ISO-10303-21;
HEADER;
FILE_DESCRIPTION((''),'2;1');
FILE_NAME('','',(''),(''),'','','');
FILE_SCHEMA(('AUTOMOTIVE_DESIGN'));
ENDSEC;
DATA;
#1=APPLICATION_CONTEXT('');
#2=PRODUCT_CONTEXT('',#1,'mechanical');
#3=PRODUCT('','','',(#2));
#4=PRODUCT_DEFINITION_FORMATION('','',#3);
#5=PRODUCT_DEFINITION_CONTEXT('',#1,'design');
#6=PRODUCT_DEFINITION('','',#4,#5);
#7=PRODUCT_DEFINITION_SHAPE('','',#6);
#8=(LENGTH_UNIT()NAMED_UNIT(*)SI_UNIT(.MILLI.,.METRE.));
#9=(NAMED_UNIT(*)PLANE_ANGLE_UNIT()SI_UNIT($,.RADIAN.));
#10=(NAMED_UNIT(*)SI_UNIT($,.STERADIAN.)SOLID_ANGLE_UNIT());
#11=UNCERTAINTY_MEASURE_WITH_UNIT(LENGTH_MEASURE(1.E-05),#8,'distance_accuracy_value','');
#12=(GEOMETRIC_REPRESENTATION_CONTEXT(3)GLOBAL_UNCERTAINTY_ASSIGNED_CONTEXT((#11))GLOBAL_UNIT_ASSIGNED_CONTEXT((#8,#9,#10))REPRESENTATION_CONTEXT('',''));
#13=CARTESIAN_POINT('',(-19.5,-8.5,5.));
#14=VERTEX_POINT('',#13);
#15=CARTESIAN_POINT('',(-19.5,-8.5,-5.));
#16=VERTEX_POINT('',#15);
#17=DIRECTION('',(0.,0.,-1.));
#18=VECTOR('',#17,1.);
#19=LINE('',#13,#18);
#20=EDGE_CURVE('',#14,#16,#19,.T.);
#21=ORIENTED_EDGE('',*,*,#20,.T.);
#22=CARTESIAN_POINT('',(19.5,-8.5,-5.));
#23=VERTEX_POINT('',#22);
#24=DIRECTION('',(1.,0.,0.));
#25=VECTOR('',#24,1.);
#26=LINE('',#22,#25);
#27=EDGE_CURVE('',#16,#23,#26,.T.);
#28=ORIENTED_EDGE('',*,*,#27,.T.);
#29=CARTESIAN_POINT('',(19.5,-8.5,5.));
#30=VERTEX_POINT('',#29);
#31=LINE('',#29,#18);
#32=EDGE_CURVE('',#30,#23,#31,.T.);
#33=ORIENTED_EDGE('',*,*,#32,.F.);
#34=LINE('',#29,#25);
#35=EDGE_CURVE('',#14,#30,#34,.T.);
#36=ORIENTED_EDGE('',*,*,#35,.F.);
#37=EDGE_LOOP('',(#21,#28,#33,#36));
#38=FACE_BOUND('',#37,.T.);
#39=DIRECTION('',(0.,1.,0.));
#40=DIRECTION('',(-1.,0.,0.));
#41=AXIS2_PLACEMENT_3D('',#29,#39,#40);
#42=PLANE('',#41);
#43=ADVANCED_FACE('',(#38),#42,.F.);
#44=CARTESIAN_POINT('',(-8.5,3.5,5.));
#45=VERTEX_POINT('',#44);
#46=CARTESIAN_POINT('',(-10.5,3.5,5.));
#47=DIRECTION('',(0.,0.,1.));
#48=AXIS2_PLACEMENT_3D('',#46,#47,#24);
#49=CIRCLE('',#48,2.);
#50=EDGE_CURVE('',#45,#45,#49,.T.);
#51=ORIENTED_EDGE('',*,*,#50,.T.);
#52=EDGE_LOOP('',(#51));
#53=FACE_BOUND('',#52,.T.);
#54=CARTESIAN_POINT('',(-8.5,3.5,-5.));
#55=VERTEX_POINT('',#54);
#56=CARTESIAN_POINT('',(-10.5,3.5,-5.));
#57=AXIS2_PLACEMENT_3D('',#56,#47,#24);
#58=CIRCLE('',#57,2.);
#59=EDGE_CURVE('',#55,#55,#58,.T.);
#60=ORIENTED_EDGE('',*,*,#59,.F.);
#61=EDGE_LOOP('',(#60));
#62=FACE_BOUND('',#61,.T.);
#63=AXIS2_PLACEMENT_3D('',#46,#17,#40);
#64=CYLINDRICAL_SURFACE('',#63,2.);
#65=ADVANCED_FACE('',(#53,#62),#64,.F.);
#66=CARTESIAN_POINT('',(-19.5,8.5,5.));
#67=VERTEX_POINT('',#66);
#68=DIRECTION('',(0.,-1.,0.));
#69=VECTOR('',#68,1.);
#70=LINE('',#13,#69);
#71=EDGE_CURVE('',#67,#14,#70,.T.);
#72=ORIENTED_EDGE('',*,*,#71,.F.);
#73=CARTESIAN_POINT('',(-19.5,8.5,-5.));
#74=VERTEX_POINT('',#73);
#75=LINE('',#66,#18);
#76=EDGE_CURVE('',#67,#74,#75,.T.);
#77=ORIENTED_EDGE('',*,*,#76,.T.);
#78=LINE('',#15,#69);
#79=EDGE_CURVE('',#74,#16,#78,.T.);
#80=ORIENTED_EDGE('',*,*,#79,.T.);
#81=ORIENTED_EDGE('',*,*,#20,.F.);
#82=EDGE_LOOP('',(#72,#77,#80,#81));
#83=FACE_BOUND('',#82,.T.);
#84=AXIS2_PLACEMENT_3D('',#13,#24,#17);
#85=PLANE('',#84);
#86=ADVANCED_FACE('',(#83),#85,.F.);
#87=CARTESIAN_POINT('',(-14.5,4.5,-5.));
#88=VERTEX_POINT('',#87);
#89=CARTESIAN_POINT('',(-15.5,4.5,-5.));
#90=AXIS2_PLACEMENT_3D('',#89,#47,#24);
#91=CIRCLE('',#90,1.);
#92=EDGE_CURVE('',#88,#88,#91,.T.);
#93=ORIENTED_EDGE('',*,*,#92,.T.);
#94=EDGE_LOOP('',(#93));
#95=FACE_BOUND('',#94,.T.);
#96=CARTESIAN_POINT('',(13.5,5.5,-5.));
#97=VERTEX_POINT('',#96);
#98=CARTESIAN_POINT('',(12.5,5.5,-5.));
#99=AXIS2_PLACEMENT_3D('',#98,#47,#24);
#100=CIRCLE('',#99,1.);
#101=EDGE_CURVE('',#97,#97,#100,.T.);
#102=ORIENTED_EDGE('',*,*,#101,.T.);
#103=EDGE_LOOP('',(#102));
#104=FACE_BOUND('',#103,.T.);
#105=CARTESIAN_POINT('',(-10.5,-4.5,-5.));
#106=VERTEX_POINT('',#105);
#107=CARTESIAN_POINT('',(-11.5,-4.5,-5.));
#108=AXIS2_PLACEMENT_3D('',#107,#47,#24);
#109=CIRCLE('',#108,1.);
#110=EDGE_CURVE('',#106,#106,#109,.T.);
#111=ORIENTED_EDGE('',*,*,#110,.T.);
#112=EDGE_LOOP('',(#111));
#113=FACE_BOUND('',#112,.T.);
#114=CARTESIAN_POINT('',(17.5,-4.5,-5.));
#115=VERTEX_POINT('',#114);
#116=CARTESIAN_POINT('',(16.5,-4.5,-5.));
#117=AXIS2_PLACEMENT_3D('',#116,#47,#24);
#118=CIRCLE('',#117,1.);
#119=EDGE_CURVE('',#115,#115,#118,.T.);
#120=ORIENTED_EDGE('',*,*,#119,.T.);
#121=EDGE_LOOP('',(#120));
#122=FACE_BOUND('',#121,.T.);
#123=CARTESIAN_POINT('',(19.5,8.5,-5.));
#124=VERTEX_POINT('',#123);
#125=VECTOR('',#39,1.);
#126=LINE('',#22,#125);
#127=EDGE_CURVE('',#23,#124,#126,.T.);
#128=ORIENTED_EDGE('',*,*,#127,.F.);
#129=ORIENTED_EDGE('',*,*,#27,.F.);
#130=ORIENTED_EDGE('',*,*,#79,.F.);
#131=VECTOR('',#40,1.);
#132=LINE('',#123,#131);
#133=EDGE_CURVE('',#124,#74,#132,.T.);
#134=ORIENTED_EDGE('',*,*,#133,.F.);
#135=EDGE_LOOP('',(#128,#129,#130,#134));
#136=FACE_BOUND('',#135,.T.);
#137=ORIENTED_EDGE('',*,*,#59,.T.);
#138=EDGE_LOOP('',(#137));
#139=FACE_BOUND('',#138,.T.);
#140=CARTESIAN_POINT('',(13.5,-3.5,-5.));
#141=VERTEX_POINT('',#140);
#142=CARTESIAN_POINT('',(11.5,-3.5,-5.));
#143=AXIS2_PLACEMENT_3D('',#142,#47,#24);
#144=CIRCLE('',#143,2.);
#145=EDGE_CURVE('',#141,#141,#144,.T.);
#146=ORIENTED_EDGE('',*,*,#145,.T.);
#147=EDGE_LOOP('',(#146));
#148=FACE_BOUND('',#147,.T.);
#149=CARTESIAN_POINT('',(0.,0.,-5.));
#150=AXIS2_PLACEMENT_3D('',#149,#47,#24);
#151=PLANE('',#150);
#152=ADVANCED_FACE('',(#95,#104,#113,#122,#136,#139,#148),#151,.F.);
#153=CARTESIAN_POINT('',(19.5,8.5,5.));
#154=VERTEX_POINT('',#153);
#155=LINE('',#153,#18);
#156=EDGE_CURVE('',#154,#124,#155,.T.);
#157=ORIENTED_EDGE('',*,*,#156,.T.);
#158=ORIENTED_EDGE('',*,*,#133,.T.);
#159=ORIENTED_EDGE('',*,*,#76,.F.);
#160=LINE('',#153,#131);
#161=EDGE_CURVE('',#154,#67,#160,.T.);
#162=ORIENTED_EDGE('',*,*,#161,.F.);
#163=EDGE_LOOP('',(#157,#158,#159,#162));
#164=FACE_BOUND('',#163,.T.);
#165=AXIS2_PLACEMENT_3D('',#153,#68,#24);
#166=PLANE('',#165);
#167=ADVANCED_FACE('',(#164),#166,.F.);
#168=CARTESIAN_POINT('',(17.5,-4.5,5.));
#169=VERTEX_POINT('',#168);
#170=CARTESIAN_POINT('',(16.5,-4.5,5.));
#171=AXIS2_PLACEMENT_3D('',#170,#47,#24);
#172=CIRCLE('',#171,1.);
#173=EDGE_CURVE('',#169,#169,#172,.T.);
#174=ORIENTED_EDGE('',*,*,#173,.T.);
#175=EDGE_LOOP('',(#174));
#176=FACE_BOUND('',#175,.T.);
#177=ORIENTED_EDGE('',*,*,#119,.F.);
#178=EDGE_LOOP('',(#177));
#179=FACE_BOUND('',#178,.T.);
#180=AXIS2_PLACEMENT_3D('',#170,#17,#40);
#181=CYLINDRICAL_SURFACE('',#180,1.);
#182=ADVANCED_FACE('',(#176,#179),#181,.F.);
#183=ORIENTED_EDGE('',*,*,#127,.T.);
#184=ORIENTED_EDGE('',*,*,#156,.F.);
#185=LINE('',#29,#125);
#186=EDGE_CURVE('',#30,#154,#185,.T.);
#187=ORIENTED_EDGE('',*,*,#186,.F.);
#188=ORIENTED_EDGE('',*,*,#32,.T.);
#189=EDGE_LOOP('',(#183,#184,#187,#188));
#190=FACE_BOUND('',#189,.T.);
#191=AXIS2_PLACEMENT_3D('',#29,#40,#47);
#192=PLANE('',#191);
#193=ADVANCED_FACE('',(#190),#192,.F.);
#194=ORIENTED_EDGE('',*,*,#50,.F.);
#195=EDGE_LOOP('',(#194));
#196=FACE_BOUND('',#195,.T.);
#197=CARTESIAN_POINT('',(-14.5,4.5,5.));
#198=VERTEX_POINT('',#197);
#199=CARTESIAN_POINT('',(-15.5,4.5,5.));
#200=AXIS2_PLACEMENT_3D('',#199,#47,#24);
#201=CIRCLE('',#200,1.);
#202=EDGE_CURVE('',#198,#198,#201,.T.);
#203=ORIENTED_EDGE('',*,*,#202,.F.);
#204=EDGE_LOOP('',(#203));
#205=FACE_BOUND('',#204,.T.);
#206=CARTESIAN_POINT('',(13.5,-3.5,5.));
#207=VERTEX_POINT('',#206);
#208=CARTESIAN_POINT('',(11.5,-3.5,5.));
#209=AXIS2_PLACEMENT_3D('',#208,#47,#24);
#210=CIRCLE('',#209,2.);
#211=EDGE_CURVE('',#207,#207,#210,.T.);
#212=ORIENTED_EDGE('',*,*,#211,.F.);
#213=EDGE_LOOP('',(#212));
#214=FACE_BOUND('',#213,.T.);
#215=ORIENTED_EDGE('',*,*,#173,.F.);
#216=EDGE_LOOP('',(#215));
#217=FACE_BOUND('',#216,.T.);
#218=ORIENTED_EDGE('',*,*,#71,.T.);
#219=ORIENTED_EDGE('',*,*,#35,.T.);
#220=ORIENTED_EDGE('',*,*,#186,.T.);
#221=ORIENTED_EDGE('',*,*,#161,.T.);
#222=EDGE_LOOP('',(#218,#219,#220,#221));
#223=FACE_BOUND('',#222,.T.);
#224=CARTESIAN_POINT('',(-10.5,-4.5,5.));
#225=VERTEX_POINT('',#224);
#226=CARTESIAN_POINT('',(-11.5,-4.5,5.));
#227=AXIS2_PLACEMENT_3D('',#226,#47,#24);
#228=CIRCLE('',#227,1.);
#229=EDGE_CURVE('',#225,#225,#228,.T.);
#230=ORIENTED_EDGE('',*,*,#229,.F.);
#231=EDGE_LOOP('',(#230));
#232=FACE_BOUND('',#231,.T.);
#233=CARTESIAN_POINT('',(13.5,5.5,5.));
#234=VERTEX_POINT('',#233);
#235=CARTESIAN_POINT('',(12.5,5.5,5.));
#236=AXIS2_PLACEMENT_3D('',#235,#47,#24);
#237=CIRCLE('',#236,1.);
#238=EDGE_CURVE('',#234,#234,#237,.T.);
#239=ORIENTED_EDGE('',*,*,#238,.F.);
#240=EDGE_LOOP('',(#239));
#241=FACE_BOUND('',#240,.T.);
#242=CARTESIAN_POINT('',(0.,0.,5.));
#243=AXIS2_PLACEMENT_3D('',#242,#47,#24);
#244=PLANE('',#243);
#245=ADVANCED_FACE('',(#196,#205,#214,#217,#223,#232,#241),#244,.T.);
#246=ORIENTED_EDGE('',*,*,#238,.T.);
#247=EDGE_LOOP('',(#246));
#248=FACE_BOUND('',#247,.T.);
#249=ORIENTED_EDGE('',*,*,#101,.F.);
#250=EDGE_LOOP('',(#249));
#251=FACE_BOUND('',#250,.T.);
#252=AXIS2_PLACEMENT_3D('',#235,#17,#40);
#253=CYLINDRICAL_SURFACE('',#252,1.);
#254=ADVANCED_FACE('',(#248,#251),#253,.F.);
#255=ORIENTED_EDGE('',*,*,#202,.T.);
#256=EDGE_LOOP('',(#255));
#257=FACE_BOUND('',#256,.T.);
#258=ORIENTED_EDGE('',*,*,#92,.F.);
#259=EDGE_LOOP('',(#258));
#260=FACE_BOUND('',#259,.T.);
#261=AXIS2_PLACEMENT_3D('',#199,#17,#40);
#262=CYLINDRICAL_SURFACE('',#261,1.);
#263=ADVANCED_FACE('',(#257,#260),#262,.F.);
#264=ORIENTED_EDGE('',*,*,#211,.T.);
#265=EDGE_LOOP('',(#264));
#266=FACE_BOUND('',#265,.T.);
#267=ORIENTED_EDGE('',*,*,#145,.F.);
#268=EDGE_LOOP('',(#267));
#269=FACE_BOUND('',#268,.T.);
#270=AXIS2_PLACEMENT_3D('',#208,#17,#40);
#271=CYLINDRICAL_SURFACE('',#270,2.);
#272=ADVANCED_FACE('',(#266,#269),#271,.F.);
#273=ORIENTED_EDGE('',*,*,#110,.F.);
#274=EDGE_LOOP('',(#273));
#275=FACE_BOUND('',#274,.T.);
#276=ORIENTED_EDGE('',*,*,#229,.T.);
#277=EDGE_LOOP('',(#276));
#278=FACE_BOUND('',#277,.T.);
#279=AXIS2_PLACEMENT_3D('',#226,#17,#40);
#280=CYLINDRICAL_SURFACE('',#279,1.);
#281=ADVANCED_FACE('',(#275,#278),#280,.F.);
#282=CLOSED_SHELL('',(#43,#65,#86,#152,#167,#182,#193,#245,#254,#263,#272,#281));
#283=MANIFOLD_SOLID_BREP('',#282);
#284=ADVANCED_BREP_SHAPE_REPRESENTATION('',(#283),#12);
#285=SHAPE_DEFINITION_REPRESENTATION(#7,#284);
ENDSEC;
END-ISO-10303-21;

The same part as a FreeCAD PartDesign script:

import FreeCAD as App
import Part
import Sketcher


def add_polygon(sketch, points):
    """Adds a closed chain of lines whose ends are joined by coincident constraints."""
    first, n = sketch.GeometryCount, len(points)
    for a, b in zip(points, points[1:] + points[:1]):
        sketch.addGeometry(Part.LineSegment(App.Vector(*a, 0), App.Vector(*b, 0)), False)
    for i in range(n):
        sketch.addConstraint(Sketcher.Constraint("Coincident", first + i, 2, first + (i + 1) % n, 1))

doc = App.newDocument("Part")
body = doc.addObject("PartDesign::Body", "Body")

sketch1 = body.newObject("Sketcher::SketchObject", "Sketch")
sketch1.AttachmentSupport = (doc.getObject("XY_Plane"), [""])
sketch1.MapMode = "FlatFace"
add_polygon(sketch1, [(-19.5, 8.5), (-19.5, -8.5), (19.5, -8.5), (19.5, 8.5)])
sketch1.addGeometry(Part.Circle(App.Vector(-11.5, -4.5, 0), App.Vector(0, 0, 1), 1), False)
sketch1.addGeometry(Part.Circle(App.Vector(16.5, -4.5, 0), App.Vector(0, 0, 1), 1), False)
sketch1.addGeometry(Part.Circle(App.Vector(11.5, -3.5, 0), App.Vector(0, 0, 1), 2), False)
sketch1.addGeometry(Part.Circle(App.Vector(-15.5, 4.5, 0), App.Vector(0, 0, 1), 1), False)
sketch1.addGeometry(Part.Circle(App.Vector(-10.5, 3.5, 0), App.Vector(0, 0, 1), 2), False)
sketch1.addGeometry(Part.Circle(App.Vector(12.5, 5.5, 0), App.Vector(0, 0, 1), 1), False)
sketch1.addConstraint([
    Sketcher.Constraint("Vertical", 0),
    Sketcher.Constraint("Horizontal", 1),
    Sketcher.Constraint("Vertical", 2),
    Sketcher.Constraint("Horizontal", 3),
    Sketcher.Constraint("Equal", 4, 5),
    Sketcher.Constraint("Equal", 5, 7),
    Sketcher.Constraint("Equal", 6, 8),
    Sketcher.Constraint("Equal", 7, 9),
    Sketcher.Constraint("Symmetric", 0, 2, 2, 2, -1, 1),
    Sketcher.Constraint("Horizontal", 4, 3, 5, 3),
    Sketcher.Constraint("Diameter", 4, 2.0),
    Sketcher.Constraint("Diameter", 6, 4.0),
    Sketcher.Constraint("DistanceX", 1, 1, 1, 2, 39.0),
    Sketcher.Constraint("DistanceY", 0, 2, 0, 1, 17.0),
    Sketcher.Constraint("DistanceX", 4, 3, 5, 3, 28.0),
    Sketcher.Constraint("DistanceX", 6, 3, 5, 3, 5.0),
    Sketcher.Constraint("DistanceY", 5, 3, 6, 3, 1.0),
    Sketcher.Constraint("DistanceX", 7, 3, 4, 3, 4.0),
    Sketcher.Constraint("DistanceY", 4, 3, 7, 3, 9.0),
    Sketcher.Constraint("DistanceX", 7, 3, 8, 3, 5.0),
    Sketcher.Constraint("DistanceY", 8, 3, 7, 3, 1.0),
    Sketcher.Constraint("DistanceX", 6, 3, 9, 3, 1.0),
    Sketcher.Constraint("DistanceY", 6, 3, 9, 3, 9.0),
    Sketcher.Constraint("DistanceX", 0, 2, 4, 3, 8.0),
    Sketcher.Constraint("DistanceY", 0, 2, 4, 3, 4.0),
])
pad1 = body.newObject("PartDesign::Pad", "Pad")
pad1.Profile = sketch1
pad1.Length = 10
pad1.Midplane = True

doc.recompute()
